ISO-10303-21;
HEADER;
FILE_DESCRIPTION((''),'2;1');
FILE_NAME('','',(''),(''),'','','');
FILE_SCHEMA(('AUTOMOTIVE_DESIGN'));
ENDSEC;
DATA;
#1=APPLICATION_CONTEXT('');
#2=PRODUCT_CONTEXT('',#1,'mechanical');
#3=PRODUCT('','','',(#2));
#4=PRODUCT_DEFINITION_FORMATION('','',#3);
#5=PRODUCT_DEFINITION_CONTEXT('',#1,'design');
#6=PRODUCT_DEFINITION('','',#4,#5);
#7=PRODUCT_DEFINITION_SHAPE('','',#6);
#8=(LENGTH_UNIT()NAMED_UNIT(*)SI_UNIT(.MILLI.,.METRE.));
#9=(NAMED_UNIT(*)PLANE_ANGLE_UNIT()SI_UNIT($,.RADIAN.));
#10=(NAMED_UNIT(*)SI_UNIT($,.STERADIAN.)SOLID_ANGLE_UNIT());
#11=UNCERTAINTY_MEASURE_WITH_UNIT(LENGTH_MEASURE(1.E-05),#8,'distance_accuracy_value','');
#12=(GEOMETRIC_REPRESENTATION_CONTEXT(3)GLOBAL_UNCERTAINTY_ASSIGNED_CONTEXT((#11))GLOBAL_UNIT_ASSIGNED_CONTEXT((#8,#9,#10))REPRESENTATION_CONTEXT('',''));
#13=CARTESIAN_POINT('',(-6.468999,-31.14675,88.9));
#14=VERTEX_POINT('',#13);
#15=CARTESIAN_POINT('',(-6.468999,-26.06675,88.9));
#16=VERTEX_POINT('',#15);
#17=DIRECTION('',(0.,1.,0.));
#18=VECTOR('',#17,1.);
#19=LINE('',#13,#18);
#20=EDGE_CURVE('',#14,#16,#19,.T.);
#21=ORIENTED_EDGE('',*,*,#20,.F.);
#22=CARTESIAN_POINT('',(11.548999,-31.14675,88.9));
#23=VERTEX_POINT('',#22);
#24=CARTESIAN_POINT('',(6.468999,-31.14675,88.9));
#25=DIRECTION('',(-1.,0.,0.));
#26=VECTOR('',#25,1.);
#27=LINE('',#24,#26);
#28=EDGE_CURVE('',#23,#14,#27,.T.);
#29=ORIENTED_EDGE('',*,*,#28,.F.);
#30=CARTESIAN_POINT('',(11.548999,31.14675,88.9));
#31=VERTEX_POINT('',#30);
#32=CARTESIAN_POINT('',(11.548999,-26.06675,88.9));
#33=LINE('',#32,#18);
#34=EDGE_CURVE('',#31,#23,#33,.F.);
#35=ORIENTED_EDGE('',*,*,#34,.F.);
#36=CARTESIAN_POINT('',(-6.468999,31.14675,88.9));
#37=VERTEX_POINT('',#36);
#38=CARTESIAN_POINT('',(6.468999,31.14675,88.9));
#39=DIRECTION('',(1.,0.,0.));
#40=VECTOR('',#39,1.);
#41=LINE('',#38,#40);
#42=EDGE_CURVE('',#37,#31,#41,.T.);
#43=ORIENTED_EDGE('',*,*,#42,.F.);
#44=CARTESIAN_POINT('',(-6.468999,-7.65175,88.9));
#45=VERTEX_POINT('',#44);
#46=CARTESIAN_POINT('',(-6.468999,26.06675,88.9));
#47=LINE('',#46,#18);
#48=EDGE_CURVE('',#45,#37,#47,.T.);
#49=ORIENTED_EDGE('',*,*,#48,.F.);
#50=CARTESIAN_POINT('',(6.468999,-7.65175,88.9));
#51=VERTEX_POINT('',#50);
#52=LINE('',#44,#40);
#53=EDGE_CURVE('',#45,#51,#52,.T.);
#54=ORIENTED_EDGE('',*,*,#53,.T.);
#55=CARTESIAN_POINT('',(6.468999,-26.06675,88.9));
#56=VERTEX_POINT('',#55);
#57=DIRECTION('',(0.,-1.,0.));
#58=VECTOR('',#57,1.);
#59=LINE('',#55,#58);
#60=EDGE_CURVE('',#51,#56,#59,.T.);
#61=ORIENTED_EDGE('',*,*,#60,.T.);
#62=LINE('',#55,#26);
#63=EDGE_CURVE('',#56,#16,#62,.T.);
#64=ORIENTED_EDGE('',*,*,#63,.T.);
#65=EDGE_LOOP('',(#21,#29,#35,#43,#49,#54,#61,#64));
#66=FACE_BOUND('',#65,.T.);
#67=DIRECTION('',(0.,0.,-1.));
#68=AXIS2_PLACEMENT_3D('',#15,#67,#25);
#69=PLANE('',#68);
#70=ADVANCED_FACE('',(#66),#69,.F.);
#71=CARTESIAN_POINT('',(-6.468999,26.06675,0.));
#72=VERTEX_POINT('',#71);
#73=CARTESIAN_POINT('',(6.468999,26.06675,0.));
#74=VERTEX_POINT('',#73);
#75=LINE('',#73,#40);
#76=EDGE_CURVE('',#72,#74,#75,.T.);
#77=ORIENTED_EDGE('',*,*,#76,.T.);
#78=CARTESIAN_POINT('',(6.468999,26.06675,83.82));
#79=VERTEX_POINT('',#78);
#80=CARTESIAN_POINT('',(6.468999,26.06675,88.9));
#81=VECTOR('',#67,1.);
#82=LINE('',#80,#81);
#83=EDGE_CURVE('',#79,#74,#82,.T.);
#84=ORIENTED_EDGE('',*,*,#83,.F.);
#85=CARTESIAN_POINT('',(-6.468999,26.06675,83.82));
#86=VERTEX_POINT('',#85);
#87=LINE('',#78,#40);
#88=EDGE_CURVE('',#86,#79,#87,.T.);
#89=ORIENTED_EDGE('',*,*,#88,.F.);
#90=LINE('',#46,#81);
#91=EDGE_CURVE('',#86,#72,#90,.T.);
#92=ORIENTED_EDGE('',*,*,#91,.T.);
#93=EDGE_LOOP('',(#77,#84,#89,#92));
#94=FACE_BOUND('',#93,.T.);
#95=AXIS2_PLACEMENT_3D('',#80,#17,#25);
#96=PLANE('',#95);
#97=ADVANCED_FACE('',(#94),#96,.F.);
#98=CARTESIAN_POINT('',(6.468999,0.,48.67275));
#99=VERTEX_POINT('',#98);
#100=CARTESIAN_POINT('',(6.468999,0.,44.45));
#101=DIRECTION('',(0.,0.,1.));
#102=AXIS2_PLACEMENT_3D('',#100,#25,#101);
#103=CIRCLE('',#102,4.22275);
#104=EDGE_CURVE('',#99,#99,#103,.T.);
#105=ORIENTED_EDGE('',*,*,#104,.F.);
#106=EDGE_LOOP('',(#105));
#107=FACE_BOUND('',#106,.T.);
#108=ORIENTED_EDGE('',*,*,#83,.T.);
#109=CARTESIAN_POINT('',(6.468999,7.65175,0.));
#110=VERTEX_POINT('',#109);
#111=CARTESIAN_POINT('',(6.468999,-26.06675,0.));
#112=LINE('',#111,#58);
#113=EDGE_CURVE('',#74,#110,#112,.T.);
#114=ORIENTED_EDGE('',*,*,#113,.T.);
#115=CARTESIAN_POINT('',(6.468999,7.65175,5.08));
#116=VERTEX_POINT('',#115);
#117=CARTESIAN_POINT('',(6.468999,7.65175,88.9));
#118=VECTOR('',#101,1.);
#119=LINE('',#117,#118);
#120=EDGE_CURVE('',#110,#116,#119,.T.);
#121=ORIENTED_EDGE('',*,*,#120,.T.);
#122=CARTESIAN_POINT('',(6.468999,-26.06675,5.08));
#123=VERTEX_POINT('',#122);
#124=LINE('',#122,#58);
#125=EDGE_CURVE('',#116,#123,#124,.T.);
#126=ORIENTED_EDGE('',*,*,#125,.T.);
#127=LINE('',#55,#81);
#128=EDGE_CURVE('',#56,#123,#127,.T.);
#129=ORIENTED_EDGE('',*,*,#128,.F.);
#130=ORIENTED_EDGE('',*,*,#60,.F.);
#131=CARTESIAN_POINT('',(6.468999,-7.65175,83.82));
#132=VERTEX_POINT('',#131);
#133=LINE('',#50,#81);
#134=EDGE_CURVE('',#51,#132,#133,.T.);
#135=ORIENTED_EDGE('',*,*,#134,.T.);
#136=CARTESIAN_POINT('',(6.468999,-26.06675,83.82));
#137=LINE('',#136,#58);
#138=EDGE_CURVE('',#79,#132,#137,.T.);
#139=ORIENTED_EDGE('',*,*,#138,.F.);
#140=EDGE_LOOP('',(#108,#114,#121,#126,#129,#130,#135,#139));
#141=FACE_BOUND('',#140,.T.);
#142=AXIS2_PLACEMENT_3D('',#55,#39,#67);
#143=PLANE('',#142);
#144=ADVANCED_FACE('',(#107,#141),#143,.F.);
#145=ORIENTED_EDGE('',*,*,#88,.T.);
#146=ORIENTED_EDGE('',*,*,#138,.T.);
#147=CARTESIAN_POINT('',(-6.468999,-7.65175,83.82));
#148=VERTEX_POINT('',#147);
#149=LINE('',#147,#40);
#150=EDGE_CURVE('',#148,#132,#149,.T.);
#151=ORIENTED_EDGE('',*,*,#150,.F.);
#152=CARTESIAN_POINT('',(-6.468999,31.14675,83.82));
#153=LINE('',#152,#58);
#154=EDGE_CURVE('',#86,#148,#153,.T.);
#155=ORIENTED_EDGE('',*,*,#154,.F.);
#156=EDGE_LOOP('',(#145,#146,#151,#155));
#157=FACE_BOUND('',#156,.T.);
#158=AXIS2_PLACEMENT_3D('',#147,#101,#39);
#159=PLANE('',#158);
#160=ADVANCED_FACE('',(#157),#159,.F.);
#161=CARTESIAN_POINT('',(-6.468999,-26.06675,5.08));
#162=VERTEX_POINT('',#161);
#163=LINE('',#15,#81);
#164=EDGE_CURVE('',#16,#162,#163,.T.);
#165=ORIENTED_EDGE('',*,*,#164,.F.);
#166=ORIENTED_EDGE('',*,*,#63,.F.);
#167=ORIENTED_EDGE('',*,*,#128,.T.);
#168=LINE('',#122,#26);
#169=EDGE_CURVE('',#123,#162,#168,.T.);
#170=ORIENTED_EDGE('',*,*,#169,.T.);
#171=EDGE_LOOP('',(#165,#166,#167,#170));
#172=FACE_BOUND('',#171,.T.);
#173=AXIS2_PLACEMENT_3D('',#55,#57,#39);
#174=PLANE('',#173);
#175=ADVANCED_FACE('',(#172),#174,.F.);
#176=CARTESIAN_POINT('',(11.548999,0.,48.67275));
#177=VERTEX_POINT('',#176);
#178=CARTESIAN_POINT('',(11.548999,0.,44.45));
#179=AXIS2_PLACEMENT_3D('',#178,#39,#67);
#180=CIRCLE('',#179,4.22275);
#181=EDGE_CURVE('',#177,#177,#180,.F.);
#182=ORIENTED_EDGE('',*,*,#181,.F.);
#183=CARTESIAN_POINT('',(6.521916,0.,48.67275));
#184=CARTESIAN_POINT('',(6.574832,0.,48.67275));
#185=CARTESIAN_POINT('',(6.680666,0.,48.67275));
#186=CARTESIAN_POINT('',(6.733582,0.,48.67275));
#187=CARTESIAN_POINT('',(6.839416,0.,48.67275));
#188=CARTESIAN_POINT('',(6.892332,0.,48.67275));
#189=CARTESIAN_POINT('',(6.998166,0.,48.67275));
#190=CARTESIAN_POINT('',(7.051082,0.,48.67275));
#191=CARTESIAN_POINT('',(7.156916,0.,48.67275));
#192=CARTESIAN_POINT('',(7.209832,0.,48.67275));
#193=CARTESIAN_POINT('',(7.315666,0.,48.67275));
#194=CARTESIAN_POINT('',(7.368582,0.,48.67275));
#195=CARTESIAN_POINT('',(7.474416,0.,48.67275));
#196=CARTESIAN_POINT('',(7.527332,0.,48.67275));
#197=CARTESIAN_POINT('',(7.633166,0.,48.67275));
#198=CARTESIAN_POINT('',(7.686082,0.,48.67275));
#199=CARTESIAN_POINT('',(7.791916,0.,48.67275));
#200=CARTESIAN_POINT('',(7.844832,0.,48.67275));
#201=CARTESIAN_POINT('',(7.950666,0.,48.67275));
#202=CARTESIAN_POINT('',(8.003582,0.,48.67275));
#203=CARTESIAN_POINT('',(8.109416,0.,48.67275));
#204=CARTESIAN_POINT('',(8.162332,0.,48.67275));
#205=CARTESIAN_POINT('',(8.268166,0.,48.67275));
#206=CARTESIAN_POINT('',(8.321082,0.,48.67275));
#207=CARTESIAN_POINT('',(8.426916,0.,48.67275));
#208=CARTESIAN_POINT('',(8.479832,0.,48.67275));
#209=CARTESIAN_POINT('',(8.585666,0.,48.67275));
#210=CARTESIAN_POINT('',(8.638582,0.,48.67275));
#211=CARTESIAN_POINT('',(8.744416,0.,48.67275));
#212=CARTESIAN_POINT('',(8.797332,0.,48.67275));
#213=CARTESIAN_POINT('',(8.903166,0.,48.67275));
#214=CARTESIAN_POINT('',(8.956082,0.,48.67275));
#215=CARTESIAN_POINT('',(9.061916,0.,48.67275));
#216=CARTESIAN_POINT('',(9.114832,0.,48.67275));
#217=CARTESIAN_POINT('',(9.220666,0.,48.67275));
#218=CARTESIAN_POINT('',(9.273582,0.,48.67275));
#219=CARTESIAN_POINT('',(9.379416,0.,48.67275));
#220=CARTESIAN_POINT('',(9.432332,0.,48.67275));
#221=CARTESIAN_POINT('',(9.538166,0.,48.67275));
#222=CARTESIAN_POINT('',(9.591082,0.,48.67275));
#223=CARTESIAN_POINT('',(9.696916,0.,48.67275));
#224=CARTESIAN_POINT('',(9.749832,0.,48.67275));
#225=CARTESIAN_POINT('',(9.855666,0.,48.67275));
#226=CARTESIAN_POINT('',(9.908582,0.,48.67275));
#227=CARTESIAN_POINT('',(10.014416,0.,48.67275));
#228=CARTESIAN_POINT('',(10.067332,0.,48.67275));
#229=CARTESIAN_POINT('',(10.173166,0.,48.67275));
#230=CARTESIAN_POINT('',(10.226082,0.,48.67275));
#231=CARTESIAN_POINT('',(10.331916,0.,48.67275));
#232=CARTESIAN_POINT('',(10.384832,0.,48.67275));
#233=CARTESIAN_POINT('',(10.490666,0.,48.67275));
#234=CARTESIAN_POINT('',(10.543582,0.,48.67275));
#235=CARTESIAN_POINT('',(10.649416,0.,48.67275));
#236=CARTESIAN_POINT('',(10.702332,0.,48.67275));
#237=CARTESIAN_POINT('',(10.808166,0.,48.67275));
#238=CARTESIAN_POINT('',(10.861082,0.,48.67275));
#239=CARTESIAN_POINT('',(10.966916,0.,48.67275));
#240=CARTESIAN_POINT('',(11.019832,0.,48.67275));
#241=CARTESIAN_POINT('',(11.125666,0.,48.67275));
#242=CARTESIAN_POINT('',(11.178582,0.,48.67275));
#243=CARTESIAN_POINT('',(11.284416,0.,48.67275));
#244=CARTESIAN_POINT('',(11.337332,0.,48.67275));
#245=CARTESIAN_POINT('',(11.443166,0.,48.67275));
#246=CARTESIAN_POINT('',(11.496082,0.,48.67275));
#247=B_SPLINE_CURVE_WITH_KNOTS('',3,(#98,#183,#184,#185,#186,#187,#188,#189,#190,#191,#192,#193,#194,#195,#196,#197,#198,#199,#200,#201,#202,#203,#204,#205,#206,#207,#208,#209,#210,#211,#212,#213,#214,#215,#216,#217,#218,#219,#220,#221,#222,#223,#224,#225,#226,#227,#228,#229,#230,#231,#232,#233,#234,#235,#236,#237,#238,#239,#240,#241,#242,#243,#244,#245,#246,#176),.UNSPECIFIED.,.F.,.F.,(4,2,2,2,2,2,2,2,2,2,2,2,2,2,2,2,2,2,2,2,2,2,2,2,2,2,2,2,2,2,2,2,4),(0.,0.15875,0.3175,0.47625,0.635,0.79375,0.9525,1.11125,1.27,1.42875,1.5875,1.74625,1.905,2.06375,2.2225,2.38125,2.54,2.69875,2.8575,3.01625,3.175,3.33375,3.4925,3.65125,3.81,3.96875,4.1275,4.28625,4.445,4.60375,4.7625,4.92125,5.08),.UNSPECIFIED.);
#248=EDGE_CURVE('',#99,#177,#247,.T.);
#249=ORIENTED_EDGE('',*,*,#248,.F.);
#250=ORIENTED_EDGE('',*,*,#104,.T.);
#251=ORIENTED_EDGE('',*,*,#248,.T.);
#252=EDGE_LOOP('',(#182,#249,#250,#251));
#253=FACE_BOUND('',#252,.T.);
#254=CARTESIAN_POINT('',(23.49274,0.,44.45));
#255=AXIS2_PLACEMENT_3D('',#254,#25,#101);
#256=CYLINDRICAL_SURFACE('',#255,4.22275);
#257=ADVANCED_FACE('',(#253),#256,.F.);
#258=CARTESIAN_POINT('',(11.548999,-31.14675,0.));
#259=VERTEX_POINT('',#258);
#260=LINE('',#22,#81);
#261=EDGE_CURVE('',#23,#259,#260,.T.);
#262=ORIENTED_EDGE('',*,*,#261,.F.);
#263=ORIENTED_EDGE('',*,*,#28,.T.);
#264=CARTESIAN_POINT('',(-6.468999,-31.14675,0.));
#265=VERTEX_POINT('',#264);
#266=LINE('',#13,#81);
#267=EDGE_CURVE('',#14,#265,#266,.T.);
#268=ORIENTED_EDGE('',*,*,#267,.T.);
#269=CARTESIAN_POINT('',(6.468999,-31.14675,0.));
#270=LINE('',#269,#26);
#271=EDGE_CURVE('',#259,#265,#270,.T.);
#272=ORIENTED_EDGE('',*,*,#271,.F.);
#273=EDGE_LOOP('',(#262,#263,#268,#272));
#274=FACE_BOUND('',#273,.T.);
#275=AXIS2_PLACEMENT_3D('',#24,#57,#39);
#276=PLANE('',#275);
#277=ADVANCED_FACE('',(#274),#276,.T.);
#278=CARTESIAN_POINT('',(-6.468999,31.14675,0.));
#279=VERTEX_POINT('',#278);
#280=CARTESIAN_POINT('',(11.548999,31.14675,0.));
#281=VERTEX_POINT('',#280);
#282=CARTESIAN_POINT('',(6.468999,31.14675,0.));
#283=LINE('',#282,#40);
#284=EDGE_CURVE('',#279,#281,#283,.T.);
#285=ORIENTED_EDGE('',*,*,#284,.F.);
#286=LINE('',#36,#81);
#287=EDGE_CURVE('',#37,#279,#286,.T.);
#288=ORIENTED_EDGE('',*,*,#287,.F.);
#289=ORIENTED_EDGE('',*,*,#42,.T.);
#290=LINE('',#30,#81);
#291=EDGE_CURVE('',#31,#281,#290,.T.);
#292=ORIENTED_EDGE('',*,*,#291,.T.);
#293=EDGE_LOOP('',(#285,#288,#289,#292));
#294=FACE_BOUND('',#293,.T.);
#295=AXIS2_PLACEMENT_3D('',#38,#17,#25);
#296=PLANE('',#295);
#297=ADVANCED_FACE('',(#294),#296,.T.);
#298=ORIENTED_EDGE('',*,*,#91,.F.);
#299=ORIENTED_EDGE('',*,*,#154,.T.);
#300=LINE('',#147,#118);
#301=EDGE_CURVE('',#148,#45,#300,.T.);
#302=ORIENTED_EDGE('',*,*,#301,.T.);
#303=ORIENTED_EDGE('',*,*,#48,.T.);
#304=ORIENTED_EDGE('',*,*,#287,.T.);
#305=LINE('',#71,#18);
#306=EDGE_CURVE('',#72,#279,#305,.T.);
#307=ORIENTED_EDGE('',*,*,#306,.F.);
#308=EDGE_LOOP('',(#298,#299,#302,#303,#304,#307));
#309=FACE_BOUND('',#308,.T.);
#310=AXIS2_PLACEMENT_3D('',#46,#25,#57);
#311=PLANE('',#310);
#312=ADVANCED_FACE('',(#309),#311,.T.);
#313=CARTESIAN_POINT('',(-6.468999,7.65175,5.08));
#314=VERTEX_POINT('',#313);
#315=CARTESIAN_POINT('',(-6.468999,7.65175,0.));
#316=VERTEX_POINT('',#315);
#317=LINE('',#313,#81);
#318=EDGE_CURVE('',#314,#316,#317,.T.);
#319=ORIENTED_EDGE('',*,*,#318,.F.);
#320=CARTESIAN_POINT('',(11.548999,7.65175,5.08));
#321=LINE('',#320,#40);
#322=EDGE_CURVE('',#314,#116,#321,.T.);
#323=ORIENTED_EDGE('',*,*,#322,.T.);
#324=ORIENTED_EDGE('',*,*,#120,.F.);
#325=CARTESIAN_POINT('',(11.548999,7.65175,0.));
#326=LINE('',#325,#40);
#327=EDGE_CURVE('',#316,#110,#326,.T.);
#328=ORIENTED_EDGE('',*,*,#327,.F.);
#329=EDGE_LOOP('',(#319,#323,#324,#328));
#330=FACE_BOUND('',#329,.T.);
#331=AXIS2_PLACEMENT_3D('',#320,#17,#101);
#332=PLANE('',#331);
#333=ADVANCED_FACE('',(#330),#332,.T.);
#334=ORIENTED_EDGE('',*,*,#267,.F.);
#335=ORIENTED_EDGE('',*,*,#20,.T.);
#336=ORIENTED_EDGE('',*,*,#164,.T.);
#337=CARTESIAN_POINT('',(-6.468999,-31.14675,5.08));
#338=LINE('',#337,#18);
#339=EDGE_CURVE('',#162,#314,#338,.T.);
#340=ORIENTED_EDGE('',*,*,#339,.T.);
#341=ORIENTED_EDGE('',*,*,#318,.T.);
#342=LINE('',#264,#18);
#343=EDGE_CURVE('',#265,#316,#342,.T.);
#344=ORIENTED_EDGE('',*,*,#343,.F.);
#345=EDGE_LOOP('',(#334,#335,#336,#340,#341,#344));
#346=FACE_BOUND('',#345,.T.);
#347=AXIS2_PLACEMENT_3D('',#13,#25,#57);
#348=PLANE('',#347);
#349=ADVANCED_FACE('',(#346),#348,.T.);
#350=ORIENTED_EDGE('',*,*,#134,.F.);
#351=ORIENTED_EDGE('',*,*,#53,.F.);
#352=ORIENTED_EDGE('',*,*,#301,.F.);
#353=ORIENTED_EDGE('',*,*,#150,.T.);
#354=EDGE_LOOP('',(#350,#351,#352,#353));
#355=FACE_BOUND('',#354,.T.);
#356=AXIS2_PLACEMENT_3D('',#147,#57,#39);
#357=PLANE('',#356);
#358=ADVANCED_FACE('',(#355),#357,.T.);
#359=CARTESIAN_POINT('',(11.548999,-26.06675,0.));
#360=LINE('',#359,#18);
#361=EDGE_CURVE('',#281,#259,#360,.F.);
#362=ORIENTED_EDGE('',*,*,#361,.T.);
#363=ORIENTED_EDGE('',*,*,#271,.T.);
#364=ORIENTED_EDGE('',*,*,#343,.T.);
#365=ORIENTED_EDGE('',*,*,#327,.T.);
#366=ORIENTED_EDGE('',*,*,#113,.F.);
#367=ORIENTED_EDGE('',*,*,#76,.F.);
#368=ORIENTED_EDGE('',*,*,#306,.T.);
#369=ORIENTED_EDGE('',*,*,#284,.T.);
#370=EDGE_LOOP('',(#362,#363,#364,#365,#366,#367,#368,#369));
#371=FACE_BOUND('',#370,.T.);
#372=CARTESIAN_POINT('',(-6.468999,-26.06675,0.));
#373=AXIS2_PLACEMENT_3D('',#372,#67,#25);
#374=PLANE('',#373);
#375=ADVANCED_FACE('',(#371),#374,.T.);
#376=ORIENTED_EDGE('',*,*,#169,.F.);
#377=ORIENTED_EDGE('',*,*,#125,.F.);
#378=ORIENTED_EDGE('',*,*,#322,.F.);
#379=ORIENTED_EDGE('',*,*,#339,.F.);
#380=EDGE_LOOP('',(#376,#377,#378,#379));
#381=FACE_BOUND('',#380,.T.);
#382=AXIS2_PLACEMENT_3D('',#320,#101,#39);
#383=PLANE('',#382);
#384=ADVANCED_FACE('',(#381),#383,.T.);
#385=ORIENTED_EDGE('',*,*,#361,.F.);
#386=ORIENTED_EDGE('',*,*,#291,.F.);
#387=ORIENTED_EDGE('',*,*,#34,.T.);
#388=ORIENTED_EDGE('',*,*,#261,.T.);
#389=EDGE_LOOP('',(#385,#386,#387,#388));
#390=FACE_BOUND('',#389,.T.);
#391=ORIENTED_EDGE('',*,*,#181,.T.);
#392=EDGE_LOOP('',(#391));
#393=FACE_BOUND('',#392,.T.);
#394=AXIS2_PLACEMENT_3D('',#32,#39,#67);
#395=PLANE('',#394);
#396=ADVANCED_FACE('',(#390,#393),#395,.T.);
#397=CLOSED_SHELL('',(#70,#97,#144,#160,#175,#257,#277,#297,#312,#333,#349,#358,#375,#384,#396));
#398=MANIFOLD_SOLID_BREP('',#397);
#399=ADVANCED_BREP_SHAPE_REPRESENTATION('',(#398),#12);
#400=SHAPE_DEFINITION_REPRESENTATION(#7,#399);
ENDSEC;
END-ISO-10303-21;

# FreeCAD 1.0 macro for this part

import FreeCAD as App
import Part
import Sketcher
Q = App.Units.Quantity

doc = App.newDocument("Part")
body = doc.addObject("PartDesign::Body", "Body")

# Sketch on XY plane
sketch1 = doc.addObject("Sketcher::SketchObject", "Sketch")
body.addObject(sketch1)
sketch1.AttachmentSupport = (doc.XY_Plane, [""])
sketch1.MapMode = "FlatFace"
sketch1.addGeometry(Part.LineSegment(App.Vector(-6, 26, 0), App.Vector(6, 26, 0)), False)
sketch1.addGeometry(Part.LineSegment(App.Vector(6, 26, 0), App.Vector(6, -26, 0)), False)
sketch1.addGeometry(Part.LineSegment(App.Vector(6, -26, 0), App.Vector(-6, -26, 0)), False)
sketch1.addGeometry(Part.LineSegment(App.Vector(-6, -26, 0), App.Vector(-6, -31, 0)), False)
sketch1.addGeometry(Part.LineSegment(App.Vector(-6, -31, 0), App.Vector(12, -31, 0)), False)
sketch1.addGeometry(Part.LineSegment(App.Vector(12, -31, 0), App.Vector(12, 31, 0)), False)
sketch1.addGeometry(Part.LineSegment(App.Vector(12, 31, 0), App.Vector(-6, 31, 0)), False)
sketch1.addGeometry(Part.LineSegment(App.Vector(-6, 31, 0), App.Vector(-6, 26, 0)), False)
sketch1.addConstraint(Sketcher.Constraint("Coincident", 0, 2, 1, 1))
sketch1.addConstraint(Sketcher.Constraint("Coincident", 1, 2, 2, 1))
sketch1.addConstraint(Sketcher.Constraint("Coincident", 2, 2, 3, 1))
sketch1.addConstraint(Sketcher.Constraint("Coincident", 3, 2, 4, 1))
sketch1.addConstraint(Sketcher.Constraint("Coincident", 4, 2, 5, 1))
sketch1.addConstraint(Sketcher.Constraint("Coincident", 5, 2, 6, 1))
sketch1.addConstraint(Sketcher.Constraint("Coincident", 6, 2, 7, 1))
sketch1.addConstraint(Sketcher.Constraint("Coincident", 7, 2, 0, 1))
sketch1.addConstraint(Sketcher.Constraint("Horizontal", 0))
sketch1.addConstraint(Sketcher.Constraint("Vertical", 1))
sketch1.addConstraint(Sketcher.Constraint("Horizontal", 2))
sketch1.addConstraint(Sketcher.Constraint("Vertical", 3))
sketch1.addConstraint(Sketcher.Constraint("Horizontal", 4))
sketch1.addConstraint(Sketcher.Constraint("Vertical", 5))
sketch1.addConstraint(Sketcher.Constraint("Horizontal", 6))
sketch1.addConstraint(Sketcher.Constraint("Vertical", 7))
sketch1.addConstraint(Sketcher.Constraint("Symmetric", 0, 2, 2, 2, -1, 1))
sketch1.addConstraint(Sketcher.Constraint("Symmetric", 3, 2, 6, 2, -1))
sketch1.addConstraint(Sketcher.Constraint("DistanceY", 3, 2, 3, 1, Q("0.2 in")))
sketch1.addConstraint(Sketcher.Constraint("DistanceX", 1, 2, 4, 2, Q("0.2 in")))
sketch1.addConstraint(Sketcher.Constraint("DistanceY", 1, 2, 1, 1, Q("2.0525 in")))
sketch1.addConstraint(Sketcher.Constraint("DistanceX", -1, 1, 0, 2, Q("6.468999 mm")))
pad1 = doc.addObject("PartDesign::Pad", "Pad")
body.addObject(pad1)
pad1.Profile = sketch1
pad1.Length = Q("3.5 in")

# Sketch on YZ plane
sketch2 = doc.addObject("Sketcher::SketchObject", "Sketch001")
body.addObject(sketch2)
sketch2.AttachmentSupport = (doc.YZ_Plane, [""])
sketch2.MapMode = "FlatFace"
sketch2.AttachmentOffset = App.Placement(App.Vector(0, 0, 6.468999), App.Rotation())
sketch2.addGeometry(Part.Circle(App.Vector(0, 44.5, 0), App.Vector(0, 0, 1), 4.2), False)
sketch2.addConstraint(Sketcher.Constraint("PointOnObject", 0, 3, -2))
sketch2.addConstraint(Sketcher.Constraint("Diameter", 0, Q("0.3325 in")))
sketch2.addConstraint(Sketcher.Constraint("DistanceY", -1, 1, 0, 3, Q("1.75 in")))
pocket1 = doc.addObject("PartDesign::Pocket", "Pocket")
body.addObject(pocket1)
pocket1.Profile = sketch2
pocket1.Length = Q("0.2 in")
pocket1.Reversed = True

# Sketch on XY plane
sketch3 = doc.addObject("Sketcher::SketchObject", "Sketch002")
body.addObject(sketch3)
sketch3.AttachmentSupport = (doc.XY_Plane, [""])
sketch3.MapMode = "FlatFace"
sketch3.AttachmentOffset = App.Placement(App.Vector(0, 0, 3.5 * 25.4), App.Rotation())
sketch3.addGeometry(Part.LineSegment(App.Vector(-6, 31, 0), App.Vector(-6, -8, 0)), False)
sketch3.addGeometry(Part.LineSegment(App.Vector(-6, -8, 0), App.Vector(12, -8, 0)), False)
sketch3.addGeometry(Part.LineSegment(App.Vector(12, -8, 0), App.Vector(12, 31, 0)), False)
sketch3.addGeometry(Part.LineSegment(App.Vector(12, 31, 0), App.Vector(-6, 31, 0)), False)
sketch3.addConstraint(Sketcher.Constraint("Coincident", 0, 2, 1, 1))
sketch3.addConstraint(Sketcher.Constraint("Coincident", 1, 2, 2, 1))
sketch3.addConstraint(Sketcher.Constraint("Coincident", 2, 2, 3, 1))
sketch3.addConstraint(Sketcher.Constraint("Coincident", 3, 2, 0, 1))
sketch3.addConstraint(Sketcher.Constraint("Vertical", 0))
sketch3.addConstraint(Sketcher.Constraint("Horizontal", 1))
sketch3.addConstraint(Sketcher.Constraint("Vertical", 2))
sketch3.addConstraint(Sketcher.Constraint("Horizontal", 3))
sketch3.addConstraint(Sketcher.Constraint("DistanceY", 0, 2, 0, 1, Q("1.5275 in")))
sketch3.addConstraint(Sketcher.Constraint("DistanceX", 0, 2, -1, 1, Q("6.468999 mm")))
sketch3.addConstraint(Sketcher.Constraint("DistanceX", -1, 1, 1, 2, Q("11.548999 mm")))
sketch3.addConstraint(Sketcher.Constraint("DistanceY", 0, 2, -1, 1, Q("7.65175 mm")))
pad2 = doc.addObject("PartDesign::Pad", "Pad001")
body.addObject(pad2)
pad2.Profile = sketch3
pad2.Length = Q("0.2 in")
pad2.Reversed = True

# Sketch on XY plane
sketch4 = doc.addObject("Sketcher::SketchObject", "Sketch003")
body.addObject(sketch4)
sketch4.AttachmentSupport = (doc.XY_Plane, [""])
sketch4.MapMode = "FlatFace"
sketch4.addGeometry(Part.LineSegment(App.Vector(12, 8, 0), App.Vector(12, -31, 0)), False)
sketch4.addGeometry(Part.LineSegment(App.Vector(12, -31, 0), App.Vector(-6, -31, 0)), False)
sketch4.addGeometry(Part.LineSegment(App.Vector(-6, -31, 0), App.Vector(-6, 8, 0)), False)
sketch4.addGeometry(Part.LineSegment(App.Vector(-6, 8, 0), App.Vector(12, 8, 0)), False)
sketch4.addConstraint(Sketcher.Constraint("Coincident", 0, 2, 1, 1))
sketch4.addConstraint(Sketcher.Constraint("Coincident", 1, 2, 2, 1))
sketch4.addConstraint(Sketcher.Constraint("Coincident", 2, 2, 3, 1))
sketch4.addConstraint(Sketcher.Constraint("Coincident", 3, 2, 0, 1))
sketch4.addConstraint(Sketcher.Constraint("Vertical", 0))
sketch4.addConstraint(Sketcher.Constraint("Horizontal", 1))
sketch4.addConstraint(Sketcher.Constraint("Vertical", 2))
sketch4.addConstraint(Sketcher.Constraint("Horizontal", 3))
sketch4.addConstraint(Sketcher.Constraint("DistanceY", 0, 2, 0, 1, Q("1.5275 in")))
sketch4.addConstraint(Sketcher.Constraint("DistanceX", -1, 1, 0, 2, Q("11.548999 mm")))
sketch4.addConstraint(Sketcher.Constraint("DistanceX", 1, 2, -1, 1, Q("6.468999 mm")))
sketch4.addConstraint(Sketcher.Constraint("DistanceY", 0, 2, -1, 1, Q("31.14675 mm")))
pad3 = doc.addObject("PartDesign::Pad", "Pad002")
body.addObject(pad3)
pad3.Profile = sketch4
pad3.Length = Q("0.2 in")

doc.recompute()
